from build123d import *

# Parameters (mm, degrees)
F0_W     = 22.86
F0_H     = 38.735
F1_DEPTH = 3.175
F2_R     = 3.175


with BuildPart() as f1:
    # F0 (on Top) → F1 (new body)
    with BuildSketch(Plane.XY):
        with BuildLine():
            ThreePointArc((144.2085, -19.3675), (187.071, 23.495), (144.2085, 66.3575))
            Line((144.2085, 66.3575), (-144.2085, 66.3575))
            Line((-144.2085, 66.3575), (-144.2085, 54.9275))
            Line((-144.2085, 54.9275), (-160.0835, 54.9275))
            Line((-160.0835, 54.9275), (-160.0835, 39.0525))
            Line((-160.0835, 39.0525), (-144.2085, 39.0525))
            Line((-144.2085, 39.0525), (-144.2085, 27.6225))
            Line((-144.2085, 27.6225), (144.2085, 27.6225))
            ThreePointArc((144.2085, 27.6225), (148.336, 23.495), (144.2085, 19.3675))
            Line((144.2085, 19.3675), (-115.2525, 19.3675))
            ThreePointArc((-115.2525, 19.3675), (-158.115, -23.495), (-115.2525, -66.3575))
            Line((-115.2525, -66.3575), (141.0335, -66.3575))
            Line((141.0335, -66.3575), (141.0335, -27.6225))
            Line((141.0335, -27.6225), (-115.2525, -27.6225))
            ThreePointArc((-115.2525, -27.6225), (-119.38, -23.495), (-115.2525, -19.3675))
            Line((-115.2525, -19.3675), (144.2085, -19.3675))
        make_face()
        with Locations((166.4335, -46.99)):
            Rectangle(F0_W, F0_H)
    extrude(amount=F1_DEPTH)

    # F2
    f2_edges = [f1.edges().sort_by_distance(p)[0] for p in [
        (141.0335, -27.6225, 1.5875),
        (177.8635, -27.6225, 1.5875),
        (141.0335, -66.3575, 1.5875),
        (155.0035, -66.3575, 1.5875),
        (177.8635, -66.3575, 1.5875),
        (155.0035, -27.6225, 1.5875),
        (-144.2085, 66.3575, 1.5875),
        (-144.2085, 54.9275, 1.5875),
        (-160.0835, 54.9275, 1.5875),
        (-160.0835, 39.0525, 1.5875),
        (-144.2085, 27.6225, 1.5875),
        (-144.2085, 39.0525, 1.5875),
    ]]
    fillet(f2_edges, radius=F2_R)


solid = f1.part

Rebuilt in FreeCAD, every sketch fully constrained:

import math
import FreeCAD as App
import Part
import Sketcher

V = App.Vector
Q = App.Units.Quantity


def edges_at(feature, points):
    """Names of the edges that pass closest to the given points."""
    edges = feature.Shape.Edges
    near = lambda p: min(range(len(edges)), key=lambda i: edges[i].distToShape(Part.Vertex(*p))[0])
    return sorted({f"Edge{near(p) + 1}" for p in points})


def add_polygon(sketch, points):
    """Adds a closed chain of lines whose ends are joined by coincident constraints."""
    first, n = sketch.GeometryCount, len(points)
    for a, b in zip(points, points[1:] + points[:1]):
        sketch.addGeometry(Part.LineSegment(App.Vector(*a, 0), App.Vector(*b, 0)), False)
    for i in range(n):
        sketch.addConstraint(Sketcher.Constraint("Coincident", first + i, 2, first + (i + 1) % n, 1))

doc = App.newDocument("Part")
body = doc.addObject("PartDesign::Body", "Body")
body.AllowCompound = True

# Sketch on XY plane
sketch1 = body.newObject("Sketcher::SketchObject", "Sketch")
sketch1.AttachmentSupport = (doc.getObject("XY_Plane"), [""])
sketch1.MapMode = "FlatFace"
sketch1.addGeometry(Part.ArcOfCircle(Part.Circle(V(144.2, 23.5, 0), V(0, 0, 1), 42.9), math.radians(-90), math.radians(90)), False)  # 0
sketch1.addGeometry(Part.LineSegment(V(144.2, 66.4, 0), V(-144.2, 66.4, 0)), False)  # 1
sketch1.addGeometry(Part.LineSegment(V(-144.2, 66.4, 0), V(-144.2, 54.9, 0)), False)  # 2
sketch1.addGeometry(Part.LineSegment(V(-144.2, 54.9, 0), V(-160.1, 54.9, 0)), False)  # 3
sketch1.addGeometry(Part.LineSegment(V(-160.1, 54.9, 0), V(-160.1, 39.1, 0)), False)  # 4
sketch1.addGeometry(Part.LineSegment(V(-160.1, 39.1, 0), V(-144.2, 39.1, 0)), False)  # 5
sketch1.addGeometry(Part.LineSegment(V(-144.2, 39.1, 0), V(-144.2, 27.6, 0)), False)  # 6
sketch1.addGeometry(Part.LineSegment(V(-144.2, 27.6, 0), V(144.2, 27.6, 0)), False)  # 7
sketch1.addGeometry(Part.ArcOfCircle(Part.Circle(V(144.2, 23.5, 0), V(0, 0, 1), 4.1), math.radians(-90), math.radians(90)), False)  # 8
sketch1.addGeometry(Part.LineSegment(V(144.2, 19.4, 0), V(-115.3, 19.4, 0)), False)  # 9
sketch1.addGeometry(Part.ArcOfCircle(Part.Circle(V(-115.3, -23.5, 0), V(0, 0, 1), 42.9), math.radians(90), math.radians(270)), False)  # 10
sketch1.addGeometry(Part.LineSegment(V(-115.3, -66.4, 0), V(141, -66.4, 0)), False)  # 11
sketch1.addGeometry(Part.LineSegment(V(141, -66.4, 0), V(141, -27.6, 0)), False)  # 12
sketch1.addGeometry(Part.LineSegment(V(141, -27.6, 0), V(-115.3, -27.6, 0)), False)  # 13
sketch1.addGeometry(Part.ArcOfCircle(Part.Circle(V(-115.3, -23.5, 0), V(0, 0, 1), 4.1), math.radians(90), math.radians(270)), False)  # 14
sketch1.addGeometry(Part.LineSegment(V(-115.3, -19.4, 0), V(144.2, -19.4, 0)), False)  # 15
add_polygon(sketch1, [(155, -27.6), (155, -66.4), (177.9, -66.4), (177.9, -27.6)])  # lines 16-19
sketch1.addConstraint(Sketcher.Constraint("Tangent", 0, 2, 1, 1))
sketch1.addConstraint(Sketcher.Constraint("Coincident", 1, 2, 2, 1))
sketch1.addConstraint(Sketcher.Constraint("Coincident", 2, 2, 3, 1))
sketch1.addConstraint(Sketcher.Constraint("Coincident", 3, 2, 4, 1))
sketch1.addConstraint(Sketcher.Constraint("Coincident", 4, 2, 5, 1))
sketch1.addConstraint(Sketcher.Constraint("Coincident", 5, 2, 6, 1))
sketch1.addConstraint(Sketcher.Constraint("Coincident", 6, 2, 7, 1))
sketch1.addConstraint(Sketcher.Constraint("Tangent", 7, 2, 8, 2))
sketch1.addConstraint(Sketcher.Constraint("Tangent", 8, 1, 9, 1))
sketch1.addConstraint(Sketcher.Constraint("Tangent", 9, 2, 10, 1))
sketch1.addConstraint(Sketcher.Constraint("Tangent", 10, 2, 11, 1))
sketch1.addConstraint(Sketcher.Constraint("Coincident", 11, 2, 12, 1))
sketch1.addConstraint(Sketcher.Constraint("Coincident", 12, 2, 13, 1))
sketch1.addConstraint(Sketcher.Constraint("Tangent", 13, 2, 14, 2))
sketch1.addConstraint(Sketcher.Constraint("Tangent", 14, 1, 15, 1))
sketch1.addConstraint(Sketcher.Constraint("Tangent", 15, 2, 0, 1))
sketch1.addConstraint(Sketcher.Constraint("Horizontal", 1))
sketch1.addConstraint(Sketcher.Constraint("Vertical", 2))
sketch1.addConstraint(Sketcher.Constraint("Horizontal", 3))
sketch1.addConstraint(Sketcher.Constraint("Vertical", 4))
sketch1.addConstraint(Sketcher.Constraint("Horizontal", 5))
sketch1.addConstraint(Sketcher.Constraint("Vertical", 6))
sketch1.addConstraint(Sketcher.Constraint("Horizontal", 7))
sketch1.addConstraint(Sketcher.Constraint("Horizontal", 9))
sketch1.addConstraint(Sketcher.Constraint("Horizontal", 11))
sketch1.addConstraint(Sketcher.Constraint("Vertical", 12))
sketch1.addConstraint(Sketcher.Constraint("Horizontal", 13))
sketch1.addConstraint(Sketcher.Constraint("Horizontal", 15))
sketch1.addConstraint(Sketcher.Constraint("Vertical", 16))
sketch1.addConstraint(Sketcher.Constraint("Horizontal", 17))
sketch1.addConstraint(Sketcher.Constraint("Vertical", 18))
sketch1.addConstraint(Sketcher.Constraint("Horizontal", 19))
sketch1.addConstraint(Sketcher.Constraint("Coincident", 8, 3, 0, 3))
sketch1.addConstraint(Sketcher.Constraint("Coincident", 14, 3, 10, 3))
sketch1.addConstraint(Sketcher.Constraint("Equal", 0, 10))
sketch1.addConstraint(Sketcher.Constraint("Horizontal", 11, 2, 16, 2))
sketch1.addConstraint(Sketcher.Constraint("Horizontal", 13, 2, 18, 2))
sketch1.addConstraint(Sketcher.Constraint("Vertical", 2, 2, 5, 2))
sketch1.addConstraint(Sketcher.Constraint("Equal", 5, 4))
sketch1.addConstraint(Sketcher.Constraint("Equal", 2, 6))
sketch1.addConstraint(Sketcher.Constraint("DistanceX", 17, 1, 17, 2, Q("0.9 in")))
sketch1.addConstraint(Sketcher.Constraint("Radius", 0, Q("1.6875 in")))
sketch1.addConstraint(Sketcher.Constraint("DistanceX", 11, 1, 11, 2, Q("10.09 in")))
sketch1.addConstraint(Sketcher.Constraint("DistanceY", 2, 2, 2, 1, Q("0.45 in")))
sketch1.addConstraint(Sketcher.Constraint("Radius", 8, Q("0.1625 in")))
sketch1.addConstraint(Sketcher.Constraint("DistanceX", 1, 2, 1, 1, Q("11.355 in")))
sketch1.addConstraint(Sketcher.Constraint("DistanceX", 9, 2, 9, 1, Q("10.215 in")))
sketch1.addConstraint(Sketcher.Constraint("DistanceX", 11, 2, 16, 2, Q("0.55 in")))
sketch1.addConstraint(Sketcher.Constraint("DistanceY", -1, 1, 0, 3, Q("0.925 in")))
sketch1.addConstraint(Sketcher.Constraint("DistanceX", -1, 1, 0, 3, Q("5.6775 in")))
pad1 = body.newObject("PartDesign::Pad", "Pad")
pad1.Profile = sketch1
pad1.Length = Q("0.125 in")
doc.recompute()

fillet = body.newObject("PartDesign::Fillet", "Fillet")
fillet.Base = (pad1, edges_at(pad1, [
    (141.034, -27.622, 1.587),
    (177.863, -27.622, 1.587),
    (141.034, -66.358, 1.587),
    (155.004, -66.358, 1.587),
    (177.863, -66.358, 1.587),
    (155.004, -27.622, 1.587),
    (-144.208, 66.358, 1.587),
    (-144.208, 54.928, 1.587),
    (-160.083, 54.928, 1.587),
    (-160.083, 39.053, 1.587),
    (-144.208, 27.622, 1.587),
    (-144.208, 39.053, 1.587),
]))
fillet.Radius = Q("0.125 in")

doc.recompute()
